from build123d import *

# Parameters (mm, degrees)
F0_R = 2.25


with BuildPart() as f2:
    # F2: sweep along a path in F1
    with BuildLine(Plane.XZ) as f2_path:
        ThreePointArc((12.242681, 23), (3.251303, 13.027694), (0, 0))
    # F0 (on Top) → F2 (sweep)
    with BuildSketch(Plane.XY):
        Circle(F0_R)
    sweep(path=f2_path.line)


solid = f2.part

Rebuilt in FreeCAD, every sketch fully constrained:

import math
import FreeCAD as App
import Part
import Sketcher
Q = App.Units.Quantity

doc = App.newDocument("Part")
body = doc.addObject("PartDesign::Body", "Body")

# Sketch on XY plane
sketch1 = doc.addObject("Sketcher::SketchObject", "Sketch")
body.addObject(sketch1)
sketch1.AttachmentSupport = (doc.XY_Plane, [""])
sketch1.MapMode = "FlatFace"
sketch1.addGeometry(Part.Circle(App.Vector(0, 0, 0), App.Vector(0, 0, 1), 2.2), False)
sketch1.addConstraint(Sketcher.Constraint("Coincident", 0, 3, -1, 1))
sketch1.addConstraint(Sketcher.Constraint("Diameter", 0, Q("4.5 mm")))

# Sketch on XZ plane
sketch2 = doc.addObject("Sketcher::SketchObject", "Sketch001")
body.addObject(sketch2)
sketch2.AttachmentSupport = (doc.XZ_Plane, [""])
sketch2.MapMode = "FlatFace"
sketch2.addGeometry(Part.ArcOfCircle(Part.Circle(App.Vector(28, 0, 0), App.Vector(0, 0, 1), 28), math.radians(124), math.radians(180)), False)
sketch2.addConstraint(Sketcher.Constraint("Coincident", 0, 2, -1, 1))
sketch2.addConstraint(Sketcher.Constraint("PointOnObject", 0, 3, -1))
sketch2.addConstraint(Sketcher.Constraint("DistanceY", -1, 1, 0, 1, Q("23 mm")))
sketch2.addConstraint(Sketcher.Constraint("Radius", 0, Q("27.726089 mm")))
doc.recompute()

additivepipe = doc.addObject("PartDesign::AdditivePipe", "AdditivePipe")
body.addObject(additivepipe)
additivepipe.Profile = sketch1
additivepipe.Spine = (sketch2, ["Edge1"])

doc.recompute()
